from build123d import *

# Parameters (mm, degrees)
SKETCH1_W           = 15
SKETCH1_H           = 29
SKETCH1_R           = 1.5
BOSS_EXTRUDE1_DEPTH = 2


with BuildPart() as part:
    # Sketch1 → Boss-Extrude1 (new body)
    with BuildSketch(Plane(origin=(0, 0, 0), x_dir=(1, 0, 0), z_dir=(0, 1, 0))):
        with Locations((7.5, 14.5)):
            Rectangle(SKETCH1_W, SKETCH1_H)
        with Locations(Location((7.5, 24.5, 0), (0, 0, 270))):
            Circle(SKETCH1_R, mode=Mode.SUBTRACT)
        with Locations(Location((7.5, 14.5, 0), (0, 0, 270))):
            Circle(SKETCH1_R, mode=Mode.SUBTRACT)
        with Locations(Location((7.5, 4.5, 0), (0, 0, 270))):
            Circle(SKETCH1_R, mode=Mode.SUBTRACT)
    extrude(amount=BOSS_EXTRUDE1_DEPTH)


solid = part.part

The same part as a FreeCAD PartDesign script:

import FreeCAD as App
import Part
import Sketcher

V = App.Vector
Q = App.Units.Quantity

doc = App.newDocument("Part")
body = doc.addObject("PartDesign::Body", "Body")

# Sketch on XZ plane
sketch1 = doc.addObject("Sketcher::SketchObject", "Sketch")
body.addObject(sketch1)
sketch1.AttachmentSupport = (doc.XZ_Plane, [""])
sketch1.MapMode = "FlatFace"
sketch1.addGeometry(Part.LineSegment(V(0, -29, 0), V(0, 0, 0)), False)
sketch1.addGeometry(Part.LineSegment(V(0, 0, 0), V(15, 0, 0)), False)
sketch1.addGeometry(Part.LineSegment(V(15, 0, 0), V(15, -29, 0)), False)
sketch1.addGeometry(Part.LineSegment(V(15, -29, 0), V(0, -29, 0)), False)
sketch1.addGeometry(Part.Circle(V(7.5, -4.5, 0), V(0, 0, 1), 1.5), False)
sketch1.addGeometry(Part.Circle(V(7.5, -14.5, 0), V(0, 0, 1), 1.5), False)
sketch1.addGeometry(Part.Circle(V(7.5, -24.5, 0), V(0, 0, 1), 1.5), False)
sketch1.addConstraint(Sketcher.Constraint("Coincident", 0, 2, 1, 1))
sketch1.addConstraint(Sketcher.Constraint("Coincident", 1, 2, 2, 1))
sketch1.addConstraint(Sketcher.Constraint("Coincident", 2, 2, 3, 1))
sketch1.addConstraint(Sketcher.Constraint("Coincident", 3, 2, 0, 1))
sketch1.addConstraint(Sketcher.Constraint("Vertical", 0))
sketch1.addConstraint(Sketcher.Constraint("Horizontal", 1))
sketch1.addConstraint(Sketcher.Constraint("Vertical", 2))
sketch1.addConstraint(Sketcher.Constraint("Horizontal", 3))
sketch1.addConstraint(Sketcher.Constraint("Coincident", 0, 2, -1, 1))
sketch1.addConstraint(Sketcher.Constraint("Equal", 4, 5))
sketch1.addConstraint(Sketcher.Constraint("Equal", 5, 6))
sketch1.addConstraint(Sketcher.Constraint("Vertical", 4, 3, 5, 3))
sketch1.addConstraint(Sketcher.Constraint("Vertical", 5, 3, 6, 3))
sketch1.addConstraint(Sketcher.Constraint("Diameter", 4, Q("3 mm")))
sketch1.addConstraint(Sketcher.Constraint("DistanceX", 1, 1, 1, 2, Q("15 mm")))
sketch1.addConstraint(Sketcher.Constraint("DistanceY", 0, 1, 0, 2, Q("29 mm")))
sketch1.addConstraint(Sketcher.Constraint("DistanceY", 5, 3, 4, 3, Q("10 mm")))
sketch1.addConstraint(Sketcher.Constraint("DistanceY", 6, 3, 5, 3, Q("10 mm")))
sketch1.addConstraint(Sketcher.Constraint("DistanceX", -1, 1, 4, 3, Q("7.5 mm")))
sketch1.addConstraint(Sketcher.Constraint("DistanceY", 4, 3, -1, 1, Q("4.5 mm")))
pad1 = doc.addObject("PartDesign::Pad", "Pad")
body.addObject(pad1)
pad1.Profile = sketch1
pad1.Length = 2
pad1.Reversed = True

doc.recompute()
